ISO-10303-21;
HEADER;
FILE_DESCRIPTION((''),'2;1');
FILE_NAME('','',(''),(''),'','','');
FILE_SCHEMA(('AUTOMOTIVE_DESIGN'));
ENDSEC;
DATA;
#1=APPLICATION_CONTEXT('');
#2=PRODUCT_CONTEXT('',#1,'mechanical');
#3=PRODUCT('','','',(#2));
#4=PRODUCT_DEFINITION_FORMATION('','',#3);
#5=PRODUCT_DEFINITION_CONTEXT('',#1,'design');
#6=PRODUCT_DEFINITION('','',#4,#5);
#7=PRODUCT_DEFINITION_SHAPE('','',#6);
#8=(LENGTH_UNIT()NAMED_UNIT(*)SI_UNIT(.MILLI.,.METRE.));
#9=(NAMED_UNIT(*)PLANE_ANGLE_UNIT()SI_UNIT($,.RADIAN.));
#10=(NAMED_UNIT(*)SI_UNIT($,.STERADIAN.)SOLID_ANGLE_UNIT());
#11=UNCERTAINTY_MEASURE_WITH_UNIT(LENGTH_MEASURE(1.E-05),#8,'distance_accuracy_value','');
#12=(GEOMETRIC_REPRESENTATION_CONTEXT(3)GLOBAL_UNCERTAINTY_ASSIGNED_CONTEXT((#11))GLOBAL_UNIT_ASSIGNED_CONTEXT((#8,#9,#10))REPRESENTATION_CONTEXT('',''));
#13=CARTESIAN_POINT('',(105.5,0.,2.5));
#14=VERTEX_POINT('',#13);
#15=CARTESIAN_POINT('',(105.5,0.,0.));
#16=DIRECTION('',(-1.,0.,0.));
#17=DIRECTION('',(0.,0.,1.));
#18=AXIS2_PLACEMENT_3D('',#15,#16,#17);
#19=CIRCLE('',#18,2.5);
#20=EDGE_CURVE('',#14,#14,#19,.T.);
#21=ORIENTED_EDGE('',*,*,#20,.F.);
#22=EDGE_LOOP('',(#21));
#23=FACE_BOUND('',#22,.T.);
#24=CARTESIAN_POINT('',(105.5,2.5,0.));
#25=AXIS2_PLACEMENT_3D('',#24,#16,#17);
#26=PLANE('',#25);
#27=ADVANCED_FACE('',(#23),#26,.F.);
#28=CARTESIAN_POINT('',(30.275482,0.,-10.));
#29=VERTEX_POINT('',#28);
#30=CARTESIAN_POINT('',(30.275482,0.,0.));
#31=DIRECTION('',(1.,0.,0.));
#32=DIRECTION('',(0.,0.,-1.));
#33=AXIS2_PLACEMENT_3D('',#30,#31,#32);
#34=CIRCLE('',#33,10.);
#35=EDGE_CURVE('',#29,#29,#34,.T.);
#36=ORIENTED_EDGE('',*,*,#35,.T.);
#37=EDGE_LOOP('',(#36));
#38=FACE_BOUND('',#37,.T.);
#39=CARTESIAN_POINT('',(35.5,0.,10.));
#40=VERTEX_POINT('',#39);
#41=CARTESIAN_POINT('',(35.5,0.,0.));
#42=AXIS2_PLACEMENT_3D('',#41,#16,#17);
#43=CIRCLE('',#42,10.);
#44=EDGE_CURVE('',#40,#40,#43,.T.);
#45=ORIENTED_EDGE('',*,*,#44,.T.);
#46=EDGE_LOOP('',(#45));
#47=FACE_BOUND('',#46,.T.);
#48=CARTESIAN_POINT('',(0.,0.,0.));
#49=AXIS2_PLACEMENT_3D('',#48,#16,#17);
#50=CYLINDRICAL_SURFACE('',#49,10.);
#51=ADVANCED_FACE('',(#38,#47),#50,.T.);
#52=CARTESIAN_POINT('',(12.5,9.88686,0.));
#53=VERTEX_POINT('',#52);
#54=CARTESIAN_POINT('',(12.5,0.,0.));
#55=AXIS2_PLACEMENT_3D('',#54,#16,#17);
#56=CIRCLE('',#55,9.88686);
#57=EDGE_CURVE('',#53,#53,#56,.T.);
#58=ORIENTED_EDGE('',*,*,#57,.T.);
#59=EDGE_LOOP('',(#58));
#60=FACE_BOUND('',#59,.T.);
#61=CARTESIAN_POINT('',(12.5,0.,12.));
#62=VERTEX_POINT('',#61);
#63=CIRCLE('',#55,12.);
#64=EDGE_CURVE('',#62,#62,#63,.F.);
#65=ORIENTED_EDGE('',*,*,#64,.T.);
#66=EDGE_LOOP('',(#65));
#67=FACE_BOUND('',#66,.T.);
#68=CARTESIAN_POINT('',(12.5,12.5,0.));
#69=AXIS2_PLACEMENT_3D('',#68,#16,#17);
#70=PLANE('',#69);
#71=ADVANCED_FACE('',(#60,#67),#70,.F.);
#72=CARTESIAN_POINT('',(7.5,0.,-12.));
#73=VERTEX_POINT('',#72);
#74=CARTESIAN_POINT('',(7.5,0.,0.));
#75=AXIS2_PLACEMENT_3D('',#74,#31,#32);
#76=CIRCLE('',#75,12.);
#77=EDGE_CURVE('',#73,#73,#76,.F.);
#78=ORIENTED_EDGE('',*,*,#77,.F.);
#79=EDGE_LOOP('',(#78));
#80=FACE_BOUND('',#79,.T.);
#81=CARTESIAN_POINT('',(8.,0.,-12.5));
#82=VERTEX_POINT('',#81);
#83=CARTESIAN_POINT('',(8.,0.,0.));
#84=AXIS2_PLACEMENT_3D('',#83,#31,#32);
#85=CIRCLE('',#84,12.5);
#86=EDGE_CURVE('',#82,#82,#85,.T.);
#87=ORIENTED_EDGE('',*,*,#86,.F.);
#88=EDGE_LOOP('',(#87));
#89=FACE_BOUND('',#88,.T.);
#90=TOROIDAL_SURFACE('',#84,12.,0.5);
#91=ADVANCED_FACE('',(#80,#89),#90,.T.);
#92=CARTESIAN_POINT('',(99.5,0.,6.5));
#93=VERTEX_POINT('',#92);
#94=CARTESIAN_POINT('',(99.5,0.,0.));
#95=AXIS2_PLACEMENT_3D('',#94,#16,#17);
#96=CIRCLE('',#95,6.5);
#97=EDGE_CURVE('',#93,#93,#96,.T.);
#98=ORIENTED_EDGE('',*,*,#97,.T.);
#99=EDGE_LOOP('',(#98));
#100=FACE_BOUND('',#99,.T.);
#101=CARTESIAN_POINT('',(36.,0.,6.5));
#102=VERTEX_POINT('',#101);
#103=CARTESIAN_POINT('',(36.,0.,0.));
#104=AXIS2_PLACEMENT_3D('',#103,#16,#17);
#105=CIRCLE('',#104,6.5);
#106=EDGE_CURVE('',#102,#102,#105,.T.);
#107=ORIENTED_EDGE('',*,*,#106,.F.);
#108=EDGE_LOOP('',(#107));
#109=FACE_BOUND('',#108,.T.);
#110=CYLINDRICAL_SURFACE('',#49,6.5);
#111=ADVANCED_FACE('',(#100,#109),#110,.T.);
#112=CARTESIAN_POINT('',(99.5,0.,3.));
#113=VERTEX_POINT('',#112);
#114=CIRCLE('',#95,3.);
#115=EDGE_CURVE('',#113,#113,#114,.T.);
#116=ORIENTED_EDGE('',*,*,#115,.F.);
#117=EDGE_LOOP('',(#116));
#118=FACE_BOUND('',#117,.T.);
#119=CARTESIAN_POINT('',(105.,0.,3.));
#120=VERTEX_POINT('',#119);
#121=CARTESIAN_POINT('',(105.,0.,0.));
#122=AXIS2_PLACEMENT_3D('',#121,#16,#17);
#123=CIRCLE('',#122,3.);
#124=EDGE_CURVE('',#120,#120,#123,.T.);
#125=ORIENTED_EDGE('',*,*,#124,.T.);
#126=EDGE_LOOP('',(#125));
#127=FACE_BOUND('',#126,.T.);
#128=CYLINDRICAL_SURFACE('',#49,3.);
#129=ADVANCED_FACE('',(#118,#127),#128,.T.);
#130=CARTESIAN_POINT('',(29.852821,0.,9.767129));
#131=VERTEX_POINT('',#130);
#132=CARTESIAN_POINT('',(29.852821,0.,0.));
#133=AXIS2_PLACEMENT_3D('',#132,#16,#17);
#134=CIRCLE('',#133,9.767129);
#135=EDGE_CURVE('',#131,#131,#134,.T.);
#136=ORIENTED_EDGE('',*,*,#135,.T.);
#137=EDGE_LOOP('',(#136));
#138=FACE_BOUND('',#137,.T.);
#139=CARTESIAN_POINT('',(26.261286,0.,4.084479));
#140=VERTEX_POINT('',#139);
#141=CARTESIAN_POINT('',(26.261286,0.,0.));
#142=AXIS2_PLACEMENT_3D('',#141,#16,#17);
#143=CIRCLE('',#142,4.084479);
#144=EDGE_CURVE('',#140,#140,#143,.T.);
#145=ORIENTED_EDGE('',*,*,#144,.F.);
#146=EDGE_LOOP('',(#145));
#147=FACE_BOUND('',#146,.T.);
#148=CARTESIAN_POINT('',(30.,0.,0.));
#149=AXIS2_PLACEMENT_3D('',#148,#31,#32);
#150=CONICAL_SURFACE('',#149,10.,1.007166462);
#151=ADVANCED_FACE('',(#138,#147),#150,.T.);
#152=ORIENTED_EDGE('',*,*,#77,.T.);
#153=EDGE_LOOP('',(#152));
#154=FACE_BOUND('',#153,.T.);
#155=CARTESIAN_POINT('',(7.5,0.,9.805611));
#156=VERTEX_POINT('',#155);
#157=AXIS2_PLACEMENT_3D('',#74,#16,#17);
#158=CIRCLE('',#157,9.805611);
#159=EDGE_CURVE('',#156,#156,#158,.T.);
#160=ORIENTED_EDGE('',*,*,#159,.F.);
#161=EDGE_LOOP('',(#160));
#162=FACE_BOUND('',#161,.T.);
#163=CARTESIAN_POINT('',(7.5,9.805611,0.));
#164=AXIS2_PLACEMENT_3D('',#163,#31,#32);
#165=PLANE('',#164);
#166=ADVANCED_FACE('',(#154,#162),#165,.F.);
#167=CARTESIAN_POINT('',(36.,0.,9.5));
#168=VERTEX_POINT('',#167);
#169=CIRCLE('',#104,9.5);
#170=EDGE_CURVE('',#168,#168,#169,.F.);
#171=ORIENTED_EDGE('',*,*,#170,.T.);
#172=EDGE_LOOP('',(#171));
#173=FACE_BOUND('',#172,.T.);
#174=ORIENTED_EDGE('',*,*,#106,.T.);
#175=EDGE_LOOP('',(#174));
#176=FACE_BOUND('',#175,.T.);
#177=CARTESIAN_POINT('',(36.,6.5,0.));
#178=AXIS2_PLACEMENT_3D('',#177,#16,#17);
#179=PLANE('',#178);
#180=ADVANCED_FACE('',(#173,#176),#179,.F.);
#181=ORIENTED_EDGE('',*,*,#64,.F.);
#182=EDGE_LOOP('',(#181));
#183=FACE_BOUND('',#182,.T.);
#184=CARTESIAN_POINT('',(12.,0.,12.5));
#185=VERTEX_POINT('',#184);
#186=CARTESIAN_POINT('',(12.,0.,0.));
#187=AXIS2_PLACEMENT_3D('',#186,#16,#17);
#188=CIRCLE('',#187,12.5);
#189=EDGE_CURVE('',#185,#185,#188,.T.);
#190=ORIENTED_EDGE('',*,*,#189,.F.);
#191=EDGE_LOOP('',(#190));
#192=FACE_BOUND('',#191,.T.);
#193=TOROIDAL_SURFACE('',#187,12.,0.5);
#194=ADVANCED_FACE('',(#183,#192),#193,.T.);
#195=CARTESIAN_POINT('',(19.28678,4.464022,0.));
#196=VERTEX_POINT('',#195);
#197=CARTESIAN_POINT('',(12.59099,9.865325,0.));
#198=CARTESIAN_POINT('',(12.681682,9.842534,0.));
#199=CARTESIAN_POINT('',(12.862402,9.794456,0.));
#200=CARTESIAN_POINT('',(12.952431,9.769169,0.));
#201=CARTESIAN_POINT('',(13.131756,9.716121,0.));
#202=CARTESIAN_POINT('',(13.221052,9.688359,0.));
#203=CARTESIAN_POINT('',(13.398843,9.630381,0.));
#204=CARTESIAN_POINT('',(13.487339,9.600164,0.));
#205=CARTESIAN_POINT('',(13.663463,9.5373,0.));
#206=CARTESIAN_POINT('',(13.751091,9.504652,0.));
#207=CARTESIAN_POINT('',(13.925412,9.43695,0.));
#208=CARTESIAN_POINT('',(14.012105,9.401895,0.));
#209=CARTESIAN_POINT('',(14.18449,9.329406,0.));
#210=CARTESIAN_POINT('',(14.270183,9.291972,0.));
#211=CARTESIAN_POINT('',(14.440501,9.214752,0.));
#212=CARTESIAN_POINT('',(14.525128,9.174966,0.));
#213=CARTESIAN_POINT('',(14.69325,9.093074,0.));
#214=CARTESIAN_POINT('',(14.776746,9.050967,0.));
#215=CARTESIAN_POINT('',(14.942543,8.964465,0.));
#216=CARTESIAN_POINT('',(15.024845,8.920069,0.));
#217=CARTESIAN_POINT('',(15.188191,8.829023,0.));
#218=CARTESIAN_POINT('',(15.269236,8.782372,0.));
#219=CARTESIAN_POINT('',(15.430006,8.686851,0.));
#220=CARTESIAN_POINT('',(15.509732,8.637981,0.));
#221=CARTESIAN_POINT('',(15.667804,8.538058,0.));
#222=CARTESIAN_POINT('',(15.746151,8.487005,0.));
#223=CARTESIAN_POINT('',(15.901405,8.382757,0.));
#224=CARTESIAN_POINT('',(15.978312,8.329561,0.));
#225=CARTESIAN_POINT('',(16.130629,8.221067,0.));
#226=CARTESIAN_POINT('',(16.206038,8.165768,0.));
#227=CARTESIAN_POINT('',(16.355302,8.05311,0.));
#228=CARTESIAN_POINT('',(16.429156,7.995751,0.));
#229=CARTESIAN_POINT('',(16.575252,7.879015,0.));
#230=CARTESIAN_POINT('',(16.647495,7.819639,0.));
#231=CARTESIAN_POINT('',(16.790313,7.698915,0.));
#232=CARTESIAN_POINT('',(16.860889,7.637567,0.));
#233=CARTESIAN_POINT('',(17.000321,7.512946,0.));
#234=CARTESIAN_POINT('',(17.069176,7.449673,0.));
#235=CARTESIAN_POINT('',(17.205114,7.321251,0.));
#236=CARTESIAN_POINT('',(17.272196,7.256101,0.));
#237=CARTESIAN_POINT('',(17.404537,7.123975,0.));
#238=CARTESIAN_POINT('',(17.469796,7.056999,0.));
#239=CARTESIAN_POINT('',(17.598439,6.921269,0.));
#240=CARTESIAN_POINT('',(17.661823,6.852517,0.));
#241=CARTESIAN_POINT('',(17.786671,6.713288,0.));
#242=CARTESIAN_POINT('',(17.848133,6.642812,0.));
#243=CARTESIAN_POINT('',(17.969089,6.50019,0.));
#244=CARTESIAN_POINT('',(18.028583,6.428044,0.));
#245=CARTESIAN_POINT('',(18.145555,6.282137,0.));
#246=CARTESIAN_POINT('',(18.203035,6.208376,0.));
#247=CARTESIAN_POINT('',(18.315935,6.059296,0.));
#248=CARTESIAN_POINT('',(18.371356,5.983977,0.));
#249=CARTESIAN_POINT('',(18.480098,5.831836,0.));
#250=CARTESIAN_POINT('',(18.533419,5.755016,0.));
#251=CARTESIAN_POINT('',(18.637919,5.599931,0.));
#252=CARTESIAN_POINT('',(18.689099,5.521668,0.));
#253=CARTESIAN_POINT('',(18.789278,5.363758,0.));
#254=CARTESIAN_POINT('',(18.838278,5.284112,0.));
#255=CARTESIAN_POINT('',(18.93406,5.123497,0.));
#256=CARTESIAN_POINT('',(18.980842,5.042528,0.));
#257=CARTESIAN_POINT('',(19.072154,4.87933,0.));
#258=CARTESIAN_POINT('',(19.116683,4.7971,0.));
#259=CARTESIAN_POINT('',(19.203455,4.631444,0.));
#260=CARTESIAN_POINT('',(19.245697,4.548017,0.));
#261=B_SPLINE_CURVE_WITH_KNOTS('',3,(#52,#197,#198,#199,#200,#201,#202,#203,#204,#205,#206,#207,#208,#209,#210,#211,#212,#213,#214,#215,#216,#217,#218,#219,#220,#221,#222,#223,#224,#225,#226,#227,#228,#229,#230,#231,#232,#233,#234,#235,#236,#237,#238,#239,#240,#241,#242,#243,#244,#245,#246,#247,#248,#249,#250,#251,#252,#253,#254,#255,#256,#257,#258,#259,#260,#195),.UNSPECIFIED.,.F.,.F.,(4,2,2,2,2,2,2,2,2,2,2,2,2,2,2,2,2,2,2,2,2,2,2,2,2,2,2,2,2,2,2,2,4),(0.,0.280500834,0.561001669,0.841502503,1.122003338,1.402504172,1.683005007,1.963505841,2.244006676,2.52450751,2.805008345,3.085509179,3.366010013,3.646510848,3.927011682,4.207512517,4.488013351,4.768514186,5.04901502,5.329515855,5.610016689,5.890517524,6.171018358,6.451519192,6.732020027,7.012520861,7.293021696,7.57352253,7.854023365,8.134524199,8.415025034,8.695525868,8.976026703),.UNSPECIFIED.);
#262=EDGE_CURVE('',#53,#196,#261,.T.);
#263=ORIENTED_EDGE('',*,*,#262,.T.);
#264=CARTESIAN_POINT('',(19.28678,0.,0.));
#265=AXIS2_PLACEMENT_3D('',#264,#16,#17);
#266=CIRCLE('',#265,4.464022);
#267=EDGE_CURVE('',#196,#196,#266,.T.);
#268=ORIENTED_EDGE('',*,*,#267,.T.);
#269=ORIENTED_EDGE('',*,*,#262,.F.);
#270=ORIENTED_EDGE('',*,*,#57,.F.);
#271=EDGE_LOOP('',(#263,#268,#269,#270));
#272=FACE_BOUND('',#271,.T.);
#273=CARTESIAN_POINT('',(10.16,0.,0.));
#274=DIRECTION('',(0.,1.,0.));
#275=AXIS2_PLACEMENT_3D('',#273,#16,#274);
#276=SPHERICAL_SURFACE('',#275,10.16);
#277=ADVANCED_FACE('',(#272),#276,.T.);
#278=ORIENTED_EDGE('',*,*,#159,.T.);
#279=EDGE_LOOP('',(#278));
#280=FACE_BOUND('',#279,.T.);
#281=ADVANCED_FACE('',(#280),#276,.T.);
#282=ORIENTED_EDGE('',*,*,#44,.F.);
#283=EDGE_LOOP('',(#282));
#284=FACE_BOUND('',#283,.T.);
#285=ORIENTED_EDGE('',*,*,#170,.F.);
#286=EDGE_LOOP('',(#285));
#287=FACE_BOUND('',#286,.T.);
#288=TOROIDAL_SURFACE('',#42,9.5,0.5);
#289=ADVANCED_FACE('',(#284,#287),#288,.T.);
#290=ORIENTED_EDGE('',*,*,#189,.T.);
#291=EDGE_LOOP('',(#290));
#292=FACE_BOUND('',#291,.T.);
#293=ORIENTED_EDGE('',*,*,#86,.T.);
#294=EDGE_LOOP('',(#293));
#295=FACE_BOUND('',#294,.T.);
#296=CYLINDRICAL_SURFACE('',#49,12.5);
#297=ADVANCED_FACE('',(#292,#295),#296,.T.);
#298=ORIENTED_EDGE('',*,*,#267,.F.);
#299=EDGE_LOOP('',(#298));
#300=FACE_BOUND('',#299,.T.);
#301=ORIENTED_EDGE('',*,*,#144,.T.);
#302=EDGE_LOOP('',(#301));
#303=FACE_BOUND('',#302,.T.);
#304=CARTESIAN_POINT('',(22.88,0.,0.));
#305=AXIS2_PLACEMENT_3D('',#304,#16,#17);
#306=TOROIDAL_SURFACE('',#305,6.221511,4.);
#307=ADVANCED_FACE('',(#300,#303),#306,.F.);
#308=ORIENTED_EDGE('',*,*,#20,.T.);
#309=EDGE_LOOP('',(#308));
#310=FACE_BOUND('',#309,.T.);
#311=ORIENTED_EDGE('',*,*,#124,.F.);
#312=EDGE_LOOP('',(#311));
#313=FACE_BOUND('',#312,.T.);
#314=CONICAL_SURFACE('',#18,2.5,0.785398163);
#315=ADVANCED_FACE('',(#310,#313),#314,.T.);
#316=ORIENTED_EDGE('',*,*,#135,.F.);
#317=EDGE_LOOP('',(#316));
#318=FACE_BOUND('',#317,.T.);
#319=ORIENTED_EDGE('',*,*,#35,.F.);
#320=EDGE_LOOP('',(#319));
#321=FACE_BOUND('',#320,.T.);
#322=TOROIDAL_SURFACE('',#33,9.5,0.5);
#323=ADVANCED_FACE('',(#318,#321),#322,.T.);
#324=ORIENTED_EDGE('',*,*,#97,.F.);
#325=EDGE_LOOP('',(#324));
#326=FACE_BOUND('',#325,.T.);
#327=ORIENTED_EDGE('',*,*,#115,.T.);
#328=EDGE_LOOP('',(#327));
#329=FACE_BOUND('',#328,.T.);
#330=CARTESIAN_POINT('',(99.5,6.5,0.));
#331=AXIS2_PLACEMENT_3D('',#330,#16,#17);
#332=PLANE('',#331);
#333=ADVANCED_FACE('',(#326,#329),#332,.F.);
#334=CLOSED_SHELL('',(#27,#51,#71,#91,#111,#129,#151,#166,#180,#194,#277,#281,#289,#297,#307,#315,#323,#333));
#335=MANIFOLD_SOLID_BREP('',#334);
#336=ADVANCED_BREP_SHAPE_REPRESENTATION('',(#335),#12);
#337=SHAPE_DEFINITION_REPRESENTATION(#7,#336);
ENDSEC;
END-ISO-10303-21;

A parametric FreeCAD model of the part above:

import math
import FreeCAD as App
import Part
import Sketcher
Q = App.Units.Quantity


def edges_at(feature, points):
    """Names of the edges that pass closest to the given points."""
    edges = feature.Shape.Edges
    near = lambda p: min(range(len(edges)), key=lambda i: edges[i].distToShape(Part.Vertex(*p))[0])
    return sorted({f"Edge{near(p) + 1}" for p in points})

doc = App.newDocument("Part")
body = doc.addObject("PartDesign::Body", "Body")

# Sketch on XY plane
sketch1 = body.newObject("Sketcher::SketchObject", "Sketch")
sketch1.AttachmentSupport = (doc.getObject("XY_Plane"), [""])
sketch1.MapMode = "FlatFace"
sketch1.addGeometry(Part.LineSegment(App.Vector(0, 0, 0), App.Vector(105.5, 0, 0)), False)
sketch1.addGeometry(Part.LineSegment(App.Vector(105.5, 0, 0), App.Vector(105.5, 2.5, 0)), False)
sketch1.addGeometry(Part.LineSegment(App.Vector(105.5, 2.5, 0), App.Vector(105, 3, 0)), False)
sketch1.addGeometry(Part.LineSegment(App.Vector(105, 3, 0), App.Vector(99.5, 3, 0)), False)
sketch1.addGeometry(Part.LineSegment(App.Vector(99.5, 3, 0), App.Vector(99.5, 6.5, 0)), False)
sketch1.addGeometry(Part.LineSegment(App.Vector(99.5, 6.5, 0), App.Vector(36, 6.5, 0)), False)
sketch1.addGeometry(Part.LineSegment(App.Vector(36, 6.5, 0), App.Vector(36, 10, 0)), False)
sketch1.addGeometry(Part.LineSegment(App.Vector(36, 10, 0), App.Vector(30, 10, 0)), False)
sketch1.addGeometry(Part.LineSegment(App.Vector(30, 10, 0), App.Vector(26.3, 4.1, 0)), False)
sketch1.addGeometry(Part.ArcOfCircle(Part.Circle(App.Vector(22.9, 6.2, 0), App.Vector(0, 0, 1), 4), math.radians(-154), math.radians(-32)), False)
sketch1.addGeometry(Part.ArcOfCircle(Part.Circle(App.Vector(10.2, 0, 0), App.Vector(0, 0, 1), 10.2), math.radians(26), math.radians(77)), False)
sketch1.addGeometry(Part.LineSegment(App.Vector(12.5, 9.9, 0), App.Vector(12.5, 12.5, 0)), False)
sketch1.addGeometry(Part.LineSegment(App.Vector(12.5, 12.5, 0), App.Vector(7.5, 12.5, 0)), False)
sketch1.addGeometry(Part.LineSegment(App.Vector(7.5, 12.5, 0), App.Vector(7.5, 9.8, 0)), False)
sketch1.addGeometry(Part.ArcOfCircle(Part.Circle(App.Vector(10.2, 0, 0), App.Vector(0, 0, 1), 10.2), math.radians(105), math.radians(180)), False)
sketch1.addConstraint(Sketcher.Constraint("Coincident", 0, 2, 1, 1))
sketch1.addConstraint(Sketcher.Constraint("Coincident", 1, 2, 2, 1))
sketch1.addConstraint(Sketcher.Constraint("Coincident", 2, 2, 3, 1))
sketch1.addConstraint(Sketcher.Constraint("Coincident", 3, 2, 4, 1))
sketch1.addConstraint(Sketcher.Constraint("Coincident", 4, 2, 5, 1))
sketch1.addConstraint(Sketcher.Constraint("Coincident", 5, 2, 6, 1))
sketch1.addConstraint(Sketcher.Constraint("Coincident", 6, 2, 7, 1))
sketch1.addConstraint(Sketcher.Constraint("Coincident", 7, 2, 8, 1))
sketch1.addConstraint(Sketcher.Constraint("Tangent", 8, 2, 9, 2))
sketch1.addConstraint(Sketcher.Constraint("Tangent", 9, 1, 10, 1))
sketch1.addConstraint(Sketcher.Constraint("Coincident", 10, 2, 11, 1))
sketch1.addConstraint(Sketcher.Constraint("Coincident", 11, 2, 12, 1))
sketch1.addConstraint(Sketcher.Constraint("Coincident", 12, 2, 13, 1))
sketch1.addConstraint(Sketcher.Constraint("Coincident", 13, 2, 14, 1))
sketch1.addConstraint(Sketcher.Constraint("Coincident", 14, 2, 0, 1))
sketch1.addConstraint(Sketcher.Constraint("Horizontal", 0))
sketch1.addConstraint(Sketcher.Constraint("Vertical", 1))
sketch1.addConstraint(Sketcher.Constraint("Horizontal", 3))
sketch1.addConstraint(Sketcher.Constraint("Vertical", 4))
sketch1.addConstraint(Sketcher.Constraint("Horizontal", 5))
sketch1.addConstraint(Sketcher.Constraint("Vertical", 6))
sketch1.addConstraint(Sketcher.Constraint("Horizontal", 7))
sketch1.addConstraint(Sketcher.Constraint("Vertical", 11))
sketch1.addConstraint(Sketcher.Constraint("Horizontal", 12))
sketch1.addConstraint(Sketcher.Constraint("Vertical", 13))
sketch1.addConstraint(Sketcher.Constraint("Coincident", 14, 2, -1, 1))
sketch1.addConstraint(Sketcher.Constraint("Coincident", 14, 3, 10, 3))
sketch1.addConstraint(Sketcher.Constraint("Equal", 10, 14))
sketch1.addConstraint(Sketcher.Constraint("PointOnObject", 10, 3, -1))
sketch1.addConstraint(Sketcher.Constraint("Equal", 4, 6))
sketch1.addConstraint(Sketcher.Constraint("Radius", 9, 4.0))
sketch1.addConstraint(Sketcher.Constraint("DistanceX", 7, 2, 7, 1, 6.0))
sketch1.addConstraint(Sketcher.Constraint("DistanceX", 12, 2, 12, 1, 5.0))
sketch1.addConstraint(Sketcher.Constraint("Angle", 2, Q("135 deg")))
sketch1.addConstraint(Sketcher.Constraint("Radius", 10, 10.16))
sketch1.addConstraint(Sketcher.Constraint("DistanceX", 0, 1, 0, 2, 105.5))
sketch1.addConstraint(Sketcher.Constraint("DistanceX", 3, 2, 3, 1, 5.5))
sketch1.addConstraint(Sketcher.Constraint("DistanceX", 5, 2, 5, 1, 63.5))
sketch1.addConstraint(Sketcher.Constraint("DistanceY", 1, 1, 1, 2, 2.5))
sketch1.addConstraint(Sketcher.Constraint("DistanceY", 4, 1, 4, 2, 3.5))
sketch1.addConstraint(Sketcher.Constraint("DistanceX", -1, 1, 2, 2, 105.0))
sketch1.addConstraint(Sketcher.Constraint("DistanceX", -1, 1, 10, 2, 12.5))
sketch1.addConstraint(Sketcher.Constraint("DistanceY", -1, 1, 11, 2, 12.5))
sketch1.addConstraint(Sketcher.Constraint("DistanceX", -1, 1, 9, 3, 22.88))
revolution = body.newObject("PartDesign::Revolution", "Revolution")
revolution.Profile = sketch1
revolution.ReferenceAxis = (sketch1, ["H_Axis"])
revolution.Angle = 360
doc.recompute()

fillet = body.newObject("PartDesign::Fillet", "Fillet")
fillet.Base = (revolution, edges_at(revolution, [
    (7.5, 0, -12.5),
    (12.5, 0, -12.5),
    (30, 0, -10),
    (36, 0, -10),
]))
fillet.Radius = 0.5

doc.recompute()
